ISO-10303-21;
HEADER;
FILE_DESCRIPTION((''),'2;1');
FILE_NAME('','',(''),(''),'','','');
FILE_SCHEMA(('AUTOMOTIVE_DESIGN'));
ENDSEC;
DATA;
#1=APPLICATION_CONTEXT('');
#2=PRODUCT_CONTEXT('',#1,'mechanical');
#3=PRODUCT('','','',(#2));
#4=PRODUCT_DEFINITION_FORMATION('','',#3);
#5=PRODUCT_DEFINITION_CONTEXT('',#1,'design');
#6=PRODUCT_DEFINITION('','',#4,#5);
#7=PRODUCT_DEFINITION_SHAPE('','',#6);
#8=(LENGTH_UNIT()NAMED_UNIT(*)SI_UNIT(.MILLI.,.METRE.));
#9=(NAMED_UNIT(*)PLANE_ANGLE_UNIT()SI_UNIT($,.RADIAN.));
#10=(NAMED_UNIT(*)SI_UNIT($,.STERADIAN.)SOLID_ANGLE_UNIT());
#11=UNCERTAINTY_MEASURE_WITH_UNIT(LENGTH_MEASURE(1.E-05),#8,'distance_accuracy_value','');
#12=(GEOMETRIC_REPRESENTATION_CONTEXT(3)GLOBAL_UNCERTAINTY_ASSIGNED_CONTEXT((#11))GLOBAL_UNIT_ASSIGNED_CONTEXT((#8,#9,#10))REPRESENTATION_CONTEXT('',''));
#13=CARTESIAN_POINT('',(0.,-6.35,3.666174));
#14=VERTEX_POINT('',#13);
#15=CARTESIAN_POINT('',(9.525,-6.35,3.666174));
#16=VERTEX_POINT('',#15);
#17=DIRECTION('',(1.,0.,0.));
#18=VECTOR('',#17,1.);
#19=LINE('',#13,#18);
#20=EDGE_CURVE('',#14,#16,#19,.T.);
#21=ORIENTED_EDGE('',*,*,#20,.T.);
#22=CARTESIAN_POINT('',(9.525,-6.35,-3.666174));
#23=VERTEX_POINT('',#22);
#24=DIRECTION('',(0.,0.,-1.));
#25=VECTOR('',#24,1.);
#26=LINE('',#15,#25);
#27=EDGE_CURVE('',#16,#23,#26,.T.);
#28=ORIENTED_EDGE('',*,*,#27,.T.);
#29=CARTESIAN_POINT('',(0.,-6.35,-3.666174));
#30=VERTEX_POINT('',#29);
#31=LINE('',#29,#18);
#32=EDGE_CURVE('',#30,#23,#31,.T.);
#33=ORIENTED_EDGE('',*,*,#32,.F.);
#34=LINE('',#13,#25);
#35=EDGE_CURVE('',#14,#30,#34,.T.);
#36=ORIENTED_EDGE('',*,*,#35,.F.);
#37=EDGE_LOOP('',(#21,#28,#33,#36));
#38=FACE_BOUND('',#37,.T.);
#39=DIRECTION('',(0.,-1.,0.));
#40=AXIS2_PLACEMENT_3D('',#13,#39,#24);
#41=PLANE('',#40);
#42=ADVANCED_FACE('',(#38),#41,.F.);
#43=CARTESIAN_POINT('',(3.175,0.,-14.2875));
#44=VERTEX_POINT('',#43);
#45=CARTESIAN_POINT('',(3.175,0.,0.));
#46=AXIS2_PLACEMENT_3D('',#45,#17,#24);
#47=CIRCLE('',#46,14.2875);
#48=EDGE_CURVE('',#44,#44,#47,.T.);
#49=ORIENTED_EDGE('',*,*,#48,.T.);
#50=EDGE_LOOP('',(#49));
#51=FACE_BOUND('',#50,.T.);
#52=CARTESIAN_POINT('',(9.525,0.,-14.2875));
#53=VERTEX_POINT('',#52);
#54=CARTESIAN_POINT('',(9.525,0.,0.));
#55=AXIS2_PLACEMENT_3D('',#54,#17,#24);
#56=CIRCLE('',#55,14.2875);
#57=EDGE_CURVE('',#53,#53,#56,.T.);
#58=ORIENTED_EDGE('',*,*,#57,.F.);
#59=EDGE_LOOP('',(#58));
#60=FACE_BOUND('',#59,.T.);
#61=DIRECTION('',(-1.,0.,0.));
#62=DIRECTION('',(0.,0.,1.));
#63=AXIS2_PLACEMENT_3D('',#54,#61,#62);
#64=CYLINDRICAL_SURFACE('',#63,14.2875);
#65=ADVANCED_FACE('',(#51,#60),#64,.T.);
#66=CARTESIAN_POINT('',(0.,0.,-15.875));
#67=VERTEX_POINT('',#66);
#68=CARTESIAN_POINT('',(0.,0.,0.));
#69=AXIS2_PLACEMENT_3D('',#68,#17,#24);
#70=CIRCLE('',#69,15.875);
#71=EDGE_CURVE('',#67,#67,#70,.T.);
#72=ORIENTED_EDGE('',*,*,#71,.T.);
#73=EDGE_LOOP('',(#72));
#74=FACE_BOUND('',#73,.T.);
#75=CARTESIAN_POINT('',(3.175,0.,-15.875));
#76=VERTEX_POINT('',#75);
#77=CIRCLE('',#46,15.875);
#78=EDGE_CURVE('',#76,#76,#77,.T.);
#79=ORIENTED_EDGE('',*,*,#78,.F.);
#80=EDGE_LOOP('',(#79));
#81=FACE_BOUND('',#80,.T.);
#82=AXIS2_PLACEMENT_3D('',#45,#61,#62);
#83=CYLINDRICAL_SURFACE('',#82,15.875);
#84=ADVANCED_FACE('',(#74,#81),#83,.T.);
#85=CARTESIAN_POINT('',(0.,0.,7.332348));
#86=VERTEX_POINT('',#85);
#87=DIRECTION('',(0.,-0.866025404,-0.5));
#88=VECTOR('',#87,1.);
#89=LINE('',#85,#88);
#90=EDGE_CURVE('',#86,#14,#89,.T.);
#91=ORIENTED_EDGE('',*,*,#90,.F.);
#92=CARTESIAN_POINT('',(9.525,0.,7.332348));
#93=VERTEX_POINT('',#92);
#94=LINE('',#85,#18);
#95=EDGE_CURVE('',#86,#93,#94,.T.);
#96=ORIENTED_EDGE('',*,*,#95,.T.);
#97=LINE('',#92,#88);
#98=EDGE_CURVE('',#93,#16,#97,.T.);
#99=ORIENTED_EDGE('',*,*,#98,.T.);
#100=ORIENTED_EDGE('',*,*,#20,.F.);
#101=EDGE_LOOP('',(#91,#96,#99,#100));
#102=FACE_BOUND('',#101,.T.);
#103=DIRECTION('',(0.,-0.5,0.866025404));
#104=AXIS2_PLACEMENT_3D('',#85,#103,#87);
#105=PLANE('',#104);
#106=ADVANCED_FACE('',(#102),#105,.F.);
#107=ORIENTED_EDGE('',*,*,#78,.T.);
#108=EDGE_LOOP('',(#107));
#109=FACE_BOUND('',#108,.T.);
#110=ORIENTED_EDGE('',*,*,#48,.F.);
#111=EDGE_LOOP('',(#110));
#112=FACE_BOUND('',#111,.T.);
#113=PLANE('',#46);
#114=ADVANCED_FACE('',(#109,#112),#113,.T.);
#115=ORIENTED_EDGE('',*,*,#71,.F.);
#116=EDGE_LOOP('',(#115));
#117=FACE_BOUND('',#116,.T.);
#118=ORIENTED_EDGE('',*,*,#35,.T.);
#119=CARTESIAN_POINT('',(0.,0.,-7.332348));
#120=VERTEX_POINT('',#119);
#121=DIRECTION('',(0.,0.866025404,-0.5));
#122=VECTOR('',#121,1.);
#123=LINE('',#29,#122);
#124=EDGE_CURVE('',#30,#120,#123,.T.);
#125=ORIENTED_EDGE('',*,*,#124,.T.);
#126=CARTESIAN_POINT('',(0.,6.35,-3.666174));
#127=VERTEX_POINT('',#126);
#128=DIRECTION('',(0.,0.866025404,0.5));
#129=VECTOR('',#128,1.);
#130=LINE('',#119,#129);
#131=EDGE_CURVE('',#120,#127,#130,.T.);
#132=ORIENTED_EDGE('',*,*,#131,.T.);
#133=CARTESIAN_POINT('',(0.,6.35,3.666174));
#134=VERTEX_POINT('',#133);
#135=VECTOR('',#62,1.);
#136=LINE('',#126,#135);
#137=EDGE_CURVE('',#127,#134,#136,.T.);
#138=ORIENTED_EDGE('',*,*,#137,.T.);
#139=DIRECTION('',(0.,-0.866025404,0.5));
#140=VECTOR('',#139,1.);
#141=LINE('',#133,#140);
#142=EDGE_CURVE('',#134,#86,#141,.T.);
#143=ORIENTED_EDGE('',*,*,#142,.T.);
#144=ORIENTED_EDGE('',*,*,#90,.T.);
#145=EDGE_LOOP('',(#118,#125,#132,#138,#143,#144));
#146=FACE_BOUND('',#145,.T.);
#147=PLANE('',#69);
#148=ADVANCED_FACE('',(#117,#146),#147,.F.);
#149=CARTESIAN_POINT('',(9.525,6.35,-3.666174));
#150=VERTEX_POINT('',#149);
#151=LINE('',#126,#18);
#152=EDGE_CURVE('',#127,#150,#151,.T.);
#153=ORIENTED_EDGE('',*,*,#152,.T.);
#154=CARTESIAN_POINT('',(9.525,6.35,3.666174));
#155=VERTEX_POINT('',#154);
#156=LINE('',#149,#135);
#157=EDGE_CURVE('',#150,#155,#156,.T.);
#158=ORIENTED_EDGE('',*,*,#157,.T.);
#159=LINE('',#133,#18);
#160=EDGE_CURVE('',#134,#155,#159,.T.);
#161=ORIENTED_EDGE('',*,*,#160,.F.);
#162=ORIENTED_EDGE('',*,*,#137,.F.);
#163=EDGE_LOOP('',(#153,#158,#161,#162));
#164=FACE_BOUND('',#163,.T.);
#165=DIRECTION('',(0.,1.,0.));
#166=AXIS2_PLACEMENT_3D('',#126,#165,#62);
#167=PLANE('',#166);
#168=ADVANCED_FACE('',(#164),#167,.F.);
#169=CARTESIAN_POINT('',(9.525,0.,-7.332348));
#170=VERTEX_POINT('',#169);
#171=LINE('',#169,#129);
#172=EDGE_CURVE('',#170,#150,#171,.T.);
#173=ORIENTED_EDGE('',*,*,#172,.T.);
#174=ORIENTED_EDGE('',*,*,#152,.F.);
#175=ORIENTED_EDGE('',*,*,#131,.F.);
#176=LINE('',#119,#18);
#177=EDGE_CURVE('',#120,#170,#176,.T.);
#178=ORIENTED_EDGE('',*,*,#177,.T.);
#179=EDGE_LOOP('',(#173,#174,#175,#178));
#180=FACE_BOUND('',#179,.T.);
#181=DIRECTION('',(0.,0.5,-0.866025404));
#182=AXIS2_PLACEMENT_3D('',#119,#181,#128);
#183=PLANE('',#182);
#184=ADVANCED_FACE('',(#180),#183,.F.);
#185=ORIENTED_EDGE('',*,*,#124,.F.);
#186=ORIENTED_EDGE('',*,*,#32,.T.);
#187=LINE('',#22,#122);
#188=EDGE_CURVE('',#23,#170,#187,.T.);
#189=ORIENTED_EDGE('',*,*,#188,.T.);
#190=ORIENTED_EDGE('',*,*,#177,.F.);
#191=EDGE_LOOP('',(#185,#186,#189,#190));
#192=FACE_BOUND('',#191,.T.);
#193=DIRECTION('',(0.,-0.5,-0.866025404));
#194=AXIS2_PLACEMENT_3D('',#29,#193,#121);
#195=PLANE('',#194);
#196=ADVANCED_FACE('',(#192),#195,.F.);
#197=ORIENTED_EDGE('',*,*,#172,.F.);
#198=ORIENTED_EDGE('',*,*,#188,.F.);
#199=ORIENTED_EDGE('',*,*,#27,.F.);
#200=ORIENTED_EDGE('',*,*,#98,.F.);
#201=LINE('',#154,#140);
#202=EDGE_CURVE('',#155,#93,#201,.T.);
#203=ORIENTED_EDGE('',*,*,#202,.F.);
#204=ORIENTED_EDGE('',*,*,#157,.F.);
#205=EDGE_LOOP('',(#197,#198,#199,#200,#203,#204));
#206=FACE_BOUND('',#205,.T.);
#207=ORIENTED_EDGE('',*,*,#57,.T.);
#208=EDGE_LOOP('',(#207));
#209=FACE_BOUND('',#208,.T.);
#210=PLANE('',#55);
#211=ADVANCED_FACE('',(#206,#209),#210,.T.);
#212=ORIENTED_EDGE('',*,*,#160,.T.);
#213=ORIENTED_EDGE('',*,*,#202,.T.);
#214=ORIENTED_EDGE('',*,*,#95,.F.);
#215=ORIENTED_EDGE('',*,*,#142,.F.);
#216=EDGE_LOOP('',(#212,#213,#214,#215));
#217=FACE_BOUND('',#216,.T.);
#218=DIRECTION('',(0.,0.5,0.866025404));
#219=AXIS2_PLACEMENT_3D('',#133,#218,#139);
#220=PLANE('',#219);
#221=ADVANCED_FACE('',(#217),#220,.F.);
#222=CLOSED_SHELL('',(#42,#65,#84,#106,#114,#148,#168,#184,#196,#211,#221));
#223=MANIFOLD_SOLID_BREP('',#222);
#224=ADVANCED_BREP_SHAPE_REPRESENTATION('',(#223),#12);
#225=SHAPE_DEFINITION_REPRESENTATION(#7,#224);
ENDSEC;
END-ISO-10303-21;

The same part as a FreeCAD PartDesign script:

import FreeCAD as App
import Part
import Sketcher
from FreeCAD import Vector
Q = App.Units.Quantity

doc = App.newDocument("Part")
params = doc.addObject("Spreadsheet::Sheet", "Params")
for row, (alias, value) in enumerate([
    ("sketch1_diameter", "1.25 in"),
    ("pad1_length", "0.125 in"),
    ("sketch2_diameter", "1.125 in"),
    ("pad2_length", "0.25 in"),
], start=1):
    params.set(f"A{row}", alias)
    params.set(f"B{row}", "=" + value)
    params.setAlias(f"B{row}", alias)

body = doc.addObject("PartDesign::Body", "Body")

# Sketch on YZ plane
sketch1 = body.newObject("Sketcher::SketchObject", "Sketch")
sketch1.AttachmentSupport = (doc.getObject("YZ_Plane"), [""])
sketch1.MapMode = "FlatFace"
sketch1.addGeometry(Part.Circle(Vector(0, 0, 0), Vector(0, 0, 1), 16), False)
sketch1.addConstraint([
    Sketcher.Constraint("Coincident", 0, 3, -1, 1),
    Sketcher.Constraint("Diameter", 0, Q("1.25 in")),
])
sketch1.setExpression("Constraints[1]", "Params.sketch1_diameter")
pad1 = body.newObject("PartDesign::Pad", "Pad")
pad1.Profile = sketch1
pad1.setExpression("Length", "Params.pad1_length")

# Sketch on YZ plane
sketch2 = body.newObject("Sketcher::SketchObject", "Sketch001")
sketch2.AttachmentSupport = (doc.getObject("YZ_Plane"), [""])
sketch2.MapMode = "FlatFace"
sketch2.AttachmentOffset = App.Placement(Vector(0, 0, 0.125 * 25.4), App.Rotation())
sketch2.addGeometry(Part.Circle(Vector(0, 0, 0), Vector(0, 0, 1), 14), False)
sketch2.addConstraint([
    Sketcher.Constraint("Coincident", 0, 3, -1, 1),
    Sketcher.Constraint("Diameter", 0, Q("1.125 in")),
])
sketch2.setExpression("Constraints[1]", "Params.sketch2_diameter")
pad2 = body.newObject("PartDesign::Pad", "Pad001")
pad2.Profile = sketch2
pad2.setExpression("Length", "Params.pad2_length")

# Sketch on YZ plane
sketch3 = body.newObject("Sketcher::SketchObject", "Sketch002")
sketch3.AttachmentSupport = (doc.getObject("YZ_Plane"), [""])
sketch3.MapMode = "FlatFace"
sketch3.AttachmentOffset = App.Placement(Vector(0, 0, 0.375 * 25.4), App.Rotation())
sketch3.addGeometry([
    Part.LineSegment(Vector(0, -7, 0), Vector(6, -4, 0)),  # 0
    Part.LineSegment(Vector(6, -4, 0), Vector(6, 4, 0)),  # 1
    Part.LineSegment(Vector(6, 4, 0), Vector(0, 7, 0)),  # 2
    Part.LineSegment(Vector(0, 7, 0), Vector(-6, 4, 0)),  # 3
    Part.LineSegment(Vector(-6, 4, 0), Vector(-6, -4, 0)),  # 4
    Part.LineSegment(Vector(-6, -4, 0), Vector(0, -7, 0)),  # 5
], False)
sketch3.addConstraint([
    Sketcher.Constraint("Coincident", 0, 2, 1, 1),
    Sketcher.Constraint("Coincident", 1, 2, 2, 1),
    Sketcher.Constraint("Coincident", 2, 2, 3, 1),
    Sketcher.Constraint("Coincident", 3, 2, 4, 1),
    Sketcher.Constraint("Coincident", 4, 2, 5, 1),
    Sketcher.Constraint("Coincident", 5, 2, 0, 1),
    Sketcher.Constraint("Vertical", 1),
    Sketcher.Constraint("Vertical", 4),
    Sketcher.Constraint("Symmetric", 0, 2, 3, 2, -1, 1),
    Sketcher.Constraint("Symmetric", 2, 2, 5, 2, -1, 1),
    Sketcher.Constraint("PointOnObject", 2, 2, -2),
    Sketcher.Constraint("Parallel", 2, 5),
    Sketcher.Constraint("Horizontal", 1, 2, 3, 2),
    Sketcher.Constraint("Angle", 0, Q("30 deg")),
    Sketcher.Constraint("DistanceX", 3, 2, 1, 2, Q("0.5 in")),
    Sketcher.Constraint("DistanceY", 1, 1, 1, 2, Q("7.332348 mm")),
])
pocket1 = body.newObject("PartDesign::Pocket", "Pocket")
pocket1.Profile = sketch3
pocket1.Type = "ThroughAll"

doc.recompute()
